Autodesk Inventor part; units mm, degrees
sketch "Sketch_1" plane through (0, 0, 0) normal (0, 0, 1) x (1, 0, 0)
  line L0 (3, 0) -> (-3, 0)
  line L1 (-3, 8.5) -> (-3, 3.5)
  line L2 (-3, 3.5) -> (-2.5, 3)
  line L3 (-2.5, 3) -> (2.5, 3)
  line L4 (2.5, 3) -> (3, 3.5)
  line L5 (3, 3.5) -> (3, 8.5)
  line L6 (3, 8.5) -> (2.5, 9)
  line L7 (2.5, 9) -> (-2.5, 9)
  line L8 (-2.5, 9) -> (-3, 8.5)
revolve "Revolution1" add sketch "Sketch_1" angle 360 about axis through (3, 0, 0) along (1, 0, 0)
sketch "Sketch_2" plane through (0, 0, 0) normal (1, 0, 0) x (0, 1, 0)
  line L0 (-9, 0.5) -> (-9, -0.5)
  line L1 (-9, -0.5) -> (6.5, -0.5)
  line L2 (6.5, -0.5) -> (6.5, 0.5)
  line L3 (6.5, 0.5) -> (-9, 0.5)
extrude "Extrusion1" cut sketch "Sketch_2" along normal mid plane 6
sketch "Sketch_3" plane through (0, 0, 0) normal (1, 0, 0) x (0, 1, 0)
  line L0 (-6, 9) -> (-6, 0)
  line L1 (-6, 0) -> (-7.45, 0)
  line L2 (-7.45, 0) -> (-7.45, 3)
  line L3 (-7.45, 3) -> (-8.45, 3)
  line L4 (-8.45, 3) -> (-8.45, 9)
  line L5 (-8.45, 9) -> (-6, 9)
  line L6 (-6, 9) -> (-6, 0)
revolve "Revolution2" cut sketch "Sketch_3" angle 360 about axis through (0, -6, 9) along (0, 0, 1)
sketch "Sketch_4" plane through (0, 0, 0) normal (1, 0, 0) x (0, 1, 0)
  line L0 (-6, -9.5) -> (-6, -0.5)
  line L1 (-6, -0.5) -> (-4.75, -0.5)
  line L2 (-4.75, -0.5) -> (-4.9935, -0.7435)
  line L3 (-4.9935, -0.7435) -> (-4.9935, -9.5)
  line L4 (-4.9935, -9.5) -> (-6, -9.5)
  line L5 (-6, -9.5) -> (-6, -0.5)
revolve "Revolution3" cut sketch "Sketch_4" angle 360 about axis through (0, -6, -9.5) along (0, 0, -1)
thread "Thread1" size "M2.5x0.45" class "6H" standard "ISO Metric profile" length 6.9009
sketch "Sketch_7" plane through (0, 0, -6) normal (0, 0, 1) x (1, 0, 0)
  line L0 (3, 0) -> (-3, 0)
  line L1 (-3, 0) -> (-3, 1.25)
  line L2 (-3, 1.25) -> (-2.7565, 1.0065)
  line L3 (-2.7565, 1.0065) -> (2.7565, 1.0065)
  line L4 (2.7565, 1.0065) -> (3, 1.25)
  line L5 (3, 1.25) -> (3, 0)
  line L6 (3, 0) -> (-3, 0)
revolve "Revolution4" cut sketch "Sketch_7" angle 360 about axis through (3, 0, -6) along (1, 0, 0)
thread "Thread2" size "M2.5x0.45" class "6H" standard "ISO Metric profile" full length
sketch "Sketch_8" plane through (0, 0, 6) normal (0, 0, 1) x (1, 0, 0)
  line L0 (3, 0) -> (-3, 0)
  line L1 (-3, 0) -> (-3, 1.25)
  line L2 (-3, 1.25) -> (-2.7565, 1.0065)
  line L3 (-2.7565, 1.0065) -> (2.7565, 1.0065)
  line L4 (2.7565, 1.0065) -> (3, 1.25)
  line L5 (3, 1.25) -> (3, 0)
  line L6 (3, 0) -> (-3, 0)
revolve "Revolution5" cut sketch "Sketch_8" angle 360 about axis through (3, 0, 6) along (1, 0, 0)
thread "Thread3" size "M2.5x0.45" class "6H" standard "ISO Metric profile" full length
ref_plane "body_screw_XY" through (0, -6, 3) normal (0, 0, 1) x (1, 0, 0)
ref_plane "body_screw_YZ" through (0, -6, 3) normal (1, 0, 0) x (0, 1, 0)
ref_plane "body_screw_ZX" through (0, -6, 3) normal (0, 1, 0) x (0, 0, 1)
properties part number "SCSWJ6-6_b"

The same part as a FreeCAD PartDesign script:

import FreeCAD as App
import Part
import Sketcher
Q = App.Units.Quantity

doc = App.newDocument("Part")
params = doc.addObject("Spreadsheet::Sheet", "Params")
for row, (alias, value) in enumerate([
    ("sketch1_width", "5 mm"),
    ("revolution_angle", "360 deg"),
    ("sketch2_height", "1 mm"),
    ("sketch2_width", "15.5 mm"),
    ("pocket1_length", "6 mm"),
    ("sketch3_width", "1 mm"),
    ("sketch3_height", "9 mm"),
    ("sketch3_height2", "6 mm"),
    ("sketch3_width2", "2.45 mm"),
    ("groove_angle", "360 deg"),
    ("sketch4_height", "9 mm"),
    ("sketch4_width", "1.25 mm"),
    ("groove2_angle", "360 deg"),
    ("sketch5_width", "6 mm"),
    ("sketch5_height", "1.25 mm"),
    ("groove3_angle", "360 deg"),
    ("sketch6_width", "6 mm"),
    ("sketch6_height", "1.25 mm"),
    ("groove4_angle", "360 deg"),
], start=1):
    params.set(f"A{row}", alias)
    params.set(f"B{row}", "=" + value)
    params.setAlias(f"B{row}", alias)

body = doc.addObject("PartDesign::Body", "Body")

# Sketch on XY plane
sketch1 = doc.addObject("Sketcher::SketchObject", "Sketch")
body.addObject(sketch1)
sketch1.AttachmentSupport = (doc.XY_Plane, [""])
sketch1.MapMode = "FlatFace"
sketch1.addGeometry([
    Part.LineSegment(App.Vector(-2.5, 9, 0), App.Vector(-3, 8.5, 0)),  # 0
    Part.LineSegment(App.Vector(-3, 8.5, 0), App.Vector(-3, 3.5, 0)),  # 1
    Part.LineSegment(App.Vector(-3, 3.5, 0), App.Vector(-2.5, 3, 0)),  # 2
    Part.LineSegment(App.Vector(-2.5, 3, 0), App.Vector(2.5, 3, 0)),  # 3
    Part.LineSegment(App.Vector(2.5, 3, 0), App.Vector(3, 3.5, 0)),  # 4
    Part.LineSegment(App.Vector(3, 3.5, 0), App.Vector(3, 8.5, 0)),  # 5
    Part.LineSegment(App.Vector(3, 8.5, 0), App.Vector(2.5, 9, 0)),  # 6
    Part.LineSegment(App.Vector(2.5, 9, 0), App.Vector(-2.5, 9, 0)),  # 7
], False)
sketch1.addConstraint([
    Sketcher.Constraint("Coincident", 0, 2, 1, 1),
    Sketcher.Constraint("Coincident", 1, 2, 2, 1),
    Sketcher.Constraint("Coincident", 2, 2, 3, 1),
    Sketcher.Constraint("Coincident", 3, 2, 4, 1),
    Sketcher.Constraint("Coincident", 4, 2, 5, 1),
    Sketcher.Constraint("Coincident", 5, 2, 6, 1),
    Sketcher.Constraint("Coincident", 6, 2, 7, 1),
    Sketcher.Constraint("Coincident", 7, 2, 0, 1),
    Sketcher.Constraint("Vertical", 1),
    Sketcher.Constraint("Horizontal", 3),
    Sketcher.Constraint("Vertical", 5),
    Sketcher.Constraint("Horizontal", 7),
    Sketcher.Constraint("Symmetric", 1, 2, 4, 2, -2),
    Sketcher.Constraint("Perpendicular", 0, 2),
    Sketcher.Constraint("Perpendicular", 2, 4),
    Sketcher.Constraint("Perpendicular", 4, 6),
    Sketcher.Constraint("Horizontal", 0, 2, 5, 2),
    Sketcher.Constraint("Vertical", 3, 2, 6, 2),
    Sketcher.Constraint("Vertical", 2, 2, 7, 2),
    Sketcher.Constraint("Equal", 7, 1),
    Sketcher.Constraint("DistanceX", 3, 1, 3, 2, 5.0),
    Sketcher.Constraint("DistanceX", 0, 2, -1, 1, 3.0),
    Sketcher.Constraint("DistanceY", -1, 1, 2, 2, 3.0),
])
sketch1.setExpression("Constraints[20]", "Params.sketch1_width")
revolution = doc.addObject("PartDesign::Revolution", "Revolution")
body.addObject(revolution)
revolution.Profile = sketch1
revolution.ReferenceAxis = (sketch1, ["H_Axis"])
revolution.setExpression("Angle", "Params.revolution_angle")

# Sketch on YZ plane
sketch2 = doc.addObject("Sketcher::SketchObject", "Sketch001")
body.addObject(sketch2)
sketch2.AttachmentSupport = (doc.YZ_Plane, [""])
sketch2.MapMode = "FlatFace"
sketch2.addGeometry([
    Part.LineSegment(App.Vector(6.5, 0.5, 0), App.Vector(-9, 0.5, 0)),
    Part.LineSegment(App.Vector(-9, 0.5, 0), App.Vector(-9, -0.5, 0)),
    Part.LineSegment(App.Vector(-9, -0.5, 0), App.Vector(6.5, -0.5, 0)),
    Part.LineSegment(App.Vector(6.5, -0.5, 0), App.Vector(6.5, 0.5, 0)),
], False)
sketch2.addConstraint([
    Sketcher.Constraint("Coincident", 0, 2, 1, 1),
    Sketcher.Constraint("Coincident", 1, 2, 2, 1),
    Sketcher.Constraint("Coincident", 2, 2, 3, 1),
    Sketcher.Constraint("Coincident", 3, 2, 0, 1),
    Sketcher.Constraint("Horizontal", 0),
    Sketcher.Constraint("Vertical", 1),
    Sketcher.Constraint("Horizontal", 2),
    Sketcher.Constraint("Vertical", 3),
    Sketcher.Constraint("DistanceY", 1, 2, 1, 1, 1.0),
    Sketcher.Constraint("DistanceX", 0, 2, 0, 1, 15.5),
    Sketcher.Constraint("DistanceX", 0, 2, -1, 1, 9.0),
    Sketcher.Constraint("DistanceY", -1, 1, 0, 2, 0.5),
])
sketch2.setExpression("Constraints[8]", "Params.sketch2_height")
sketch2.setExpression("Constraints[9]", "Params.sketch2_width")
pocket1 = doc.addObject("PartDesign::Pocket", "Pocket")
body.addObject(pocket1)
pocket1.Profile = sketch2
pocket1.setExpression("Length", "Params.pocket1_length")
pocket1.Midplane = True

# Sketch on YZ plane
sketch3 = doc.addObject("Sketcher::SketchObject", "Sketch002")
body.addObject(sketch3)
sketch3.AttachmentSupport = (doc.YZ_Plane, [""])
sketch3.MapMode = "FlatFace"
sketch3.addGeometry([
    Part.LineSegment(App.Vector(-6, 0, 0), App.Vector(-6, 9, 0)),  # 0
    Part.LineSegment(App.Vector(-6, 9, 0), App.Vector(-8.4, 9, 0)),  # 1
    Part.LineSegment(App.Vector(-8.4, 9, 0), App.Vector(-8.4, 3, 0)),  # 2
    Part.LineSegment(App.Vector(-8.4, 3, 0), App.Vector(-7.5, 3, 0)),  # 3
    Part.LineSegment(App.Vector(-7.5, 3, 0), App.Vector(-7.5, 0, 0)),  # 4
    Part.LineSegment(App.Vector(-7.5, 0, 0), App.Vector(-6, 0, 0)),  # 5
], False)
sketch3.addGeometry(Part.LineSegment(App.Vector(-6, 0, 0), App.Vector(-6, 9, 0)), True)  # axis
sketch3.addConstraint([
    Sketcher.Constraint("Coincident", 0, 2, 1, 1),
    Sketcher.Constraint("Coincident", 1, 2, 2, 1),
    Sketcher.Constraint("Coincident", 2, 2, 3, 1),
    Sketcher.Constraint("Coincident", 3, 2, 4, 1),
    Sketcher.Constraint("Coincident", 4, 2, 5, 1),
    Sketcher.Constraint("Coincident", 5, 2, 0, 1),
    Sketcher.Constraint("Vertical", 0),
    Sketcher.Constraint("Horizontal", 1),
    Sketcher.Constraint("Vertical", 2),
    Sketcher.Constraint("Horizontal", 3),
    Sketcher.Constraint("Vertical", 4),
    Sketcher.Constraint("Horizontal", 5),
    Sketcher.Constraint("Vertical", 6),
    Sketcher.Constraint("Coincident", 6, 1, 5, 2),
    Sketcher.Constraint("PointOnObject", 4, 2, -1),
    Sketcher.Constraint("Horizontal", 1, 2, 6, 2),
    Sketcher.Constraint("DistanceX", 3, 1, 3, 2, 1.0),
    Sketcher.Constraint("DistanceY", 0, 1, 0, 2, 9.0),
    Sketcher.Constraint("DistanceY", 2, 2, 2, 1, 6.0),
    Sketcher.Constraint("DistanceX", 0, 2, -1, 1, 6.0),
    Sketcher.Constraint("DistanceX", 1, 2, 1, 1, 2.45),
])
sketch3.setExpression("Constraints[16]", "Params.sketch3_width")
sketch3.setExpression("Constraints[17]", "Params.sketch3_height")
sketch3.setExpression("Constraints[18]", "Params.sketch3_height2")
sketch3.setExpression("Constraints[20]", "Params.sketch3_width2")
groove = doc.addObject("PartDesign::Groove", "Groove")
body.addObject(groove)
groove.Profile = sketch3
groove.ReferenceAxis = (sketch3, ["Axis0"])
groove.setExpression("Angle", "Params.groove_angle")

# Sketch on YZ plane
sketch4 = doc.addObject("Sketcher::SketchObject", "Sketch003")
body.addObject(sketch4)
sketch4.AttachmentSupport = (doc.YZ_Plane, [""])
sketch4.MapMode = "FlatFace"
sketch4.addGeometry([
    Part.LineSegment(App.Vector(-6, -0.5, 0), App.Vector(-6, -9.5, 0)),  # 0
    Part.LineSegment(App.Vector(-6, -9.5, 0), App.Vector(-4.99, -9.5, 0)),  # 1
    Part.LineSegment(App.Vector(-4.99, -9.5, 0), App.Vector(-4.99, -0.74, 0)),  # 2
    Part.LineSegment(App.Vector(-4.99, -0.74, 0), App.Vector(-4.75, -0.5, 0)),  # 3
    Part.LineSegment(App.Vector(-4.75, -0.5, 0), App.Vector(-6, -0.5, 0)),  # 4
], False)
sketch4.addGeometry(Part.LineSegment(App.Vector(-6, -0.5, 0), App.Vector(-6, -9.5, 0)), True)  # axis
sketch4.addConstraint([
    Sketcher.Constraint("Coincident", 0, 2, 1, 1),
    Sketcher.Constraint("Coincident", 1, 2, 2, 1),
    Sketcher.Constraint("Coincident", 2, 2, 3, 1),
    Sketcher.Constraint("Coincident", 3, 2, 4, 1),
    Sketcher.Constraint("Coincident", 4, 2, 0, 1),
    Sketcher.Constraint("Vertical", 0),
    Sketcher.Constraint("Horizontal", 1),
    Sketcher.Constraint("Vertical", 2),
    Sketcher.Constraint("Horizontal", 4),
    Sketcher.Constraint("Vertical", 5),
    Sketcher.Constraint("Coincident", 5, 1, 4, 2),
    Sketcher.Constraint("Horizontal", 1, 2, 5, 2),
    Sketcher.Constraint("DistanceY", 0, 2, 0, 1, 9.0),
    Sketcher.Constraint("Angle", 3, Q("45 deg")),
    Sketcher.Constraint("DistanceX", 0, 2, -1, 1, 6.0),
    Sketcher.Constraint("DistanceX", 4, 2, 4, 1, 1.25),
    Sketcher.Constraint("DistanceY", 0, 2, -1, 1, 9.5),
    Sketcher.Constraint("DistanceX", 1, 1, 1, 2, 1.0065),
])
sketch4.setExpression("Constraints[12]", "Params.sketch4_height")
sketch4.setExpression("Constraints[15]", "Params.sketch4_width")
groove2 = doc.addObject("PartDesign::Groove", "Groove001")
body.addObject(groove2)
groove2.Profile = sketch4
groove2.ReferenceAxis = (sketch4, ["Axis0"])
groove2.setExpression("Angle", "Params.groove2_angle")

# Sketch on XY plane
sketch5 = doc.addObject("Sketcher::SketchObject", "Sketch004")
body.addObject(sketch5)
sketch5.AttachmentSupport = (doc.XY_Plane, [""])
sketch5.MapMode = "FlatFace"
sketch5.AttachmentOffset = App.Placement(App.Vector(0, 0, -6), App.Rotation())
sketch5.addGeometry([
    Part.LineSegment(App.Vector(-3, 0, 0), App.Vector(3, 0, 0)),  # 0
    Part.LineSegment(App.Vector(3, 0, 0), App.Vector(3, 1.25, 0)),  # 1
    Part.LineSegment(App.Vector(3, 1.25, 0), App.Vector(2.76, 1.01, 0)),  # 2
    Part.LineSegment(App.Vector(2.76, 1.01, 0), App.Vector(-2.76, 1.01, 0)),  # 3
    Part.LineSegment(App.Vector(-2.76, 1.01, 0), App.Vector(-3, 1.25, 0)),  # 4
    Part.LineSegment(App.Vector(-3, 1.25, 0), App.Vector(-3, 0, 0)),  # 5
], False)
sketch5.addConstraint([
    Sketcher.Constraint("Coincident", 0, 2, 1, 1),
    Sketcher.Constraint("Coincident", 1, 2, 2, 1),
    Sketcher.Constraint("Coincident", 2, 2, 3, 1),
    Sketcher.Constraint("Coincident", 3, 2, 4, 1),
    Sketcher.Constraint("Coincident", 4, 2, 5, 1),
    Sketcher.Constraint("Coincident", 5, 2, 0, 1),
    Sketcher.Constraint("Horizontal", 0),
    Sketcher.Constraint("Vertical", 1),
    Sketcher.Constraint("Horizontal", 3),
    Sketcher.Constraint("Vertical", 5),
    Sketcher.Constraint("Symmetric", 0, 2, 5, 2, -1, 1),
    Sketcher.Constraint("Perpendicular", 2, 4),
    Sketcher.Constraint("Horizontal", 1, 2, 4, 2),
    Sketcher.Constraint("Equal", 2, 4),
    Sketcher.Constraint("DistanceX", 0, 1, 0, 2, 6.0),
    Sketcher.Constraint("DistanceY", 1, 1, 1, 2, 1.25),
    Sketcher.Constraint("DistanceX", 3, 2, 3, 1, 5.513),
])
sketch5.setExpression("Constraints[14]", "Params.sketch5_width")
sketch5.setExpression("Constraints[15]", "Params.sketch5_height")
groove3 = doc.addObject("PartDesign::Groove", "Groove002")
body.addObject(groove3)
groove3.Profile = sketch5
groove3.ReferenceAxis = (sketch5, ["H_Axis"])
groove3.setExpression("Angle", "Params.groove3_angle")

# Sketch on XY plane
sketch6 = doc.addObject("Sketcher::SketchObject", "Sketch005")
body.addObject(sketch6)
sketch6.AttachmentSupport = (doc.XY_Plane, [""])
sketch6.MapMode = "FlatFace"
sketch6.AttachmentOffset = App.Placement(App.Vector(0, 0, 6), App.Rotation())
sketch6.addGeometry([
    Part.LineSegment(App.Vector(-3, 0, 0), App.Vector(3, 0, 0)),  # 0
    Part.LineSegment(App.Vector(3, 0, 0), App.Vector(3, 1.25, 0)),  # 1
    Part.LineSegment(App.Vector(3, 1.25, 0), App.Vector(2.76, 1.01, 0)),  # 2
    Part.LineSegment(App.Vector(2.76, 1.01, 0), App.Vector(-2.76, 1.01, 0)),  # 3
    Part.LineSegment(App.Vector(-2.76, 1.01, 0), App.Vector(-3, 1.25, 0)),  # 4
    Part.LineSegment(App.Vector(-3, 1.25, 0), App.Vector(-3, 0, 0)),  # 5
], False)
sketch6.addConstraint([
    Sketcher.Constraint("Coincident", 0, 2, 1, 1),
    Sketcher.Constraint("Coincident", 1, 2, 2, 1),
    Sketcher.Constraint("Coincident", 2, 2, 3, 1),
    Sketcher.Constraint("Coincident", 3, 2, 4, 1),
    Sketcher.Constraint("Coincident", 4, 2, 5, 1),
    Sketcher.Constraint("Coincident", 5, 2, 0, 1),
    Sketcher.Constraint("Horizontal", 0),
    Sketcher.Constraint("Vertical", 1),
    Sketcher.Constraint("Horizontal", 3),
    Sketcher.Constraint("Vertical", 5),
    Sketcher.Constraint("Symmetric", 0, 2, 5, 2, -1, 1),
    Sketcher.Constraint("Perpendicular", 2, 4),
    Sketcher.Constraint("Horizontal", 1, 2, 4, 2),
    Sketcher.Constraint("Equal", 2, 4),
    Sketcher.Constraint("DistanceX", 0, 1, 0, 2, 6.0),
    Sketcher.Constraint("DistanceY", 1, 1, 1, 2, 1.25),
    Sketcher.Constraint("DistanceX", 3, 2, 3, 1, 5.513),
])
sketch6.setExpression("Constraints[14]", "Params.sketch6_width")
sketch6.setExpression("Constraints[15]", "Params.sketch6_height")
groove4 = doc.addObject("PartDesign::Groove", "Groove003")
body.addObject(groove4)
groove4.Profile = sketch6
groove4.ReferenceAxis = (sketch6, ["H_Axis"])
groove4.setExpression("Angle", "Params.groove4_angle")

doc.recompute()
